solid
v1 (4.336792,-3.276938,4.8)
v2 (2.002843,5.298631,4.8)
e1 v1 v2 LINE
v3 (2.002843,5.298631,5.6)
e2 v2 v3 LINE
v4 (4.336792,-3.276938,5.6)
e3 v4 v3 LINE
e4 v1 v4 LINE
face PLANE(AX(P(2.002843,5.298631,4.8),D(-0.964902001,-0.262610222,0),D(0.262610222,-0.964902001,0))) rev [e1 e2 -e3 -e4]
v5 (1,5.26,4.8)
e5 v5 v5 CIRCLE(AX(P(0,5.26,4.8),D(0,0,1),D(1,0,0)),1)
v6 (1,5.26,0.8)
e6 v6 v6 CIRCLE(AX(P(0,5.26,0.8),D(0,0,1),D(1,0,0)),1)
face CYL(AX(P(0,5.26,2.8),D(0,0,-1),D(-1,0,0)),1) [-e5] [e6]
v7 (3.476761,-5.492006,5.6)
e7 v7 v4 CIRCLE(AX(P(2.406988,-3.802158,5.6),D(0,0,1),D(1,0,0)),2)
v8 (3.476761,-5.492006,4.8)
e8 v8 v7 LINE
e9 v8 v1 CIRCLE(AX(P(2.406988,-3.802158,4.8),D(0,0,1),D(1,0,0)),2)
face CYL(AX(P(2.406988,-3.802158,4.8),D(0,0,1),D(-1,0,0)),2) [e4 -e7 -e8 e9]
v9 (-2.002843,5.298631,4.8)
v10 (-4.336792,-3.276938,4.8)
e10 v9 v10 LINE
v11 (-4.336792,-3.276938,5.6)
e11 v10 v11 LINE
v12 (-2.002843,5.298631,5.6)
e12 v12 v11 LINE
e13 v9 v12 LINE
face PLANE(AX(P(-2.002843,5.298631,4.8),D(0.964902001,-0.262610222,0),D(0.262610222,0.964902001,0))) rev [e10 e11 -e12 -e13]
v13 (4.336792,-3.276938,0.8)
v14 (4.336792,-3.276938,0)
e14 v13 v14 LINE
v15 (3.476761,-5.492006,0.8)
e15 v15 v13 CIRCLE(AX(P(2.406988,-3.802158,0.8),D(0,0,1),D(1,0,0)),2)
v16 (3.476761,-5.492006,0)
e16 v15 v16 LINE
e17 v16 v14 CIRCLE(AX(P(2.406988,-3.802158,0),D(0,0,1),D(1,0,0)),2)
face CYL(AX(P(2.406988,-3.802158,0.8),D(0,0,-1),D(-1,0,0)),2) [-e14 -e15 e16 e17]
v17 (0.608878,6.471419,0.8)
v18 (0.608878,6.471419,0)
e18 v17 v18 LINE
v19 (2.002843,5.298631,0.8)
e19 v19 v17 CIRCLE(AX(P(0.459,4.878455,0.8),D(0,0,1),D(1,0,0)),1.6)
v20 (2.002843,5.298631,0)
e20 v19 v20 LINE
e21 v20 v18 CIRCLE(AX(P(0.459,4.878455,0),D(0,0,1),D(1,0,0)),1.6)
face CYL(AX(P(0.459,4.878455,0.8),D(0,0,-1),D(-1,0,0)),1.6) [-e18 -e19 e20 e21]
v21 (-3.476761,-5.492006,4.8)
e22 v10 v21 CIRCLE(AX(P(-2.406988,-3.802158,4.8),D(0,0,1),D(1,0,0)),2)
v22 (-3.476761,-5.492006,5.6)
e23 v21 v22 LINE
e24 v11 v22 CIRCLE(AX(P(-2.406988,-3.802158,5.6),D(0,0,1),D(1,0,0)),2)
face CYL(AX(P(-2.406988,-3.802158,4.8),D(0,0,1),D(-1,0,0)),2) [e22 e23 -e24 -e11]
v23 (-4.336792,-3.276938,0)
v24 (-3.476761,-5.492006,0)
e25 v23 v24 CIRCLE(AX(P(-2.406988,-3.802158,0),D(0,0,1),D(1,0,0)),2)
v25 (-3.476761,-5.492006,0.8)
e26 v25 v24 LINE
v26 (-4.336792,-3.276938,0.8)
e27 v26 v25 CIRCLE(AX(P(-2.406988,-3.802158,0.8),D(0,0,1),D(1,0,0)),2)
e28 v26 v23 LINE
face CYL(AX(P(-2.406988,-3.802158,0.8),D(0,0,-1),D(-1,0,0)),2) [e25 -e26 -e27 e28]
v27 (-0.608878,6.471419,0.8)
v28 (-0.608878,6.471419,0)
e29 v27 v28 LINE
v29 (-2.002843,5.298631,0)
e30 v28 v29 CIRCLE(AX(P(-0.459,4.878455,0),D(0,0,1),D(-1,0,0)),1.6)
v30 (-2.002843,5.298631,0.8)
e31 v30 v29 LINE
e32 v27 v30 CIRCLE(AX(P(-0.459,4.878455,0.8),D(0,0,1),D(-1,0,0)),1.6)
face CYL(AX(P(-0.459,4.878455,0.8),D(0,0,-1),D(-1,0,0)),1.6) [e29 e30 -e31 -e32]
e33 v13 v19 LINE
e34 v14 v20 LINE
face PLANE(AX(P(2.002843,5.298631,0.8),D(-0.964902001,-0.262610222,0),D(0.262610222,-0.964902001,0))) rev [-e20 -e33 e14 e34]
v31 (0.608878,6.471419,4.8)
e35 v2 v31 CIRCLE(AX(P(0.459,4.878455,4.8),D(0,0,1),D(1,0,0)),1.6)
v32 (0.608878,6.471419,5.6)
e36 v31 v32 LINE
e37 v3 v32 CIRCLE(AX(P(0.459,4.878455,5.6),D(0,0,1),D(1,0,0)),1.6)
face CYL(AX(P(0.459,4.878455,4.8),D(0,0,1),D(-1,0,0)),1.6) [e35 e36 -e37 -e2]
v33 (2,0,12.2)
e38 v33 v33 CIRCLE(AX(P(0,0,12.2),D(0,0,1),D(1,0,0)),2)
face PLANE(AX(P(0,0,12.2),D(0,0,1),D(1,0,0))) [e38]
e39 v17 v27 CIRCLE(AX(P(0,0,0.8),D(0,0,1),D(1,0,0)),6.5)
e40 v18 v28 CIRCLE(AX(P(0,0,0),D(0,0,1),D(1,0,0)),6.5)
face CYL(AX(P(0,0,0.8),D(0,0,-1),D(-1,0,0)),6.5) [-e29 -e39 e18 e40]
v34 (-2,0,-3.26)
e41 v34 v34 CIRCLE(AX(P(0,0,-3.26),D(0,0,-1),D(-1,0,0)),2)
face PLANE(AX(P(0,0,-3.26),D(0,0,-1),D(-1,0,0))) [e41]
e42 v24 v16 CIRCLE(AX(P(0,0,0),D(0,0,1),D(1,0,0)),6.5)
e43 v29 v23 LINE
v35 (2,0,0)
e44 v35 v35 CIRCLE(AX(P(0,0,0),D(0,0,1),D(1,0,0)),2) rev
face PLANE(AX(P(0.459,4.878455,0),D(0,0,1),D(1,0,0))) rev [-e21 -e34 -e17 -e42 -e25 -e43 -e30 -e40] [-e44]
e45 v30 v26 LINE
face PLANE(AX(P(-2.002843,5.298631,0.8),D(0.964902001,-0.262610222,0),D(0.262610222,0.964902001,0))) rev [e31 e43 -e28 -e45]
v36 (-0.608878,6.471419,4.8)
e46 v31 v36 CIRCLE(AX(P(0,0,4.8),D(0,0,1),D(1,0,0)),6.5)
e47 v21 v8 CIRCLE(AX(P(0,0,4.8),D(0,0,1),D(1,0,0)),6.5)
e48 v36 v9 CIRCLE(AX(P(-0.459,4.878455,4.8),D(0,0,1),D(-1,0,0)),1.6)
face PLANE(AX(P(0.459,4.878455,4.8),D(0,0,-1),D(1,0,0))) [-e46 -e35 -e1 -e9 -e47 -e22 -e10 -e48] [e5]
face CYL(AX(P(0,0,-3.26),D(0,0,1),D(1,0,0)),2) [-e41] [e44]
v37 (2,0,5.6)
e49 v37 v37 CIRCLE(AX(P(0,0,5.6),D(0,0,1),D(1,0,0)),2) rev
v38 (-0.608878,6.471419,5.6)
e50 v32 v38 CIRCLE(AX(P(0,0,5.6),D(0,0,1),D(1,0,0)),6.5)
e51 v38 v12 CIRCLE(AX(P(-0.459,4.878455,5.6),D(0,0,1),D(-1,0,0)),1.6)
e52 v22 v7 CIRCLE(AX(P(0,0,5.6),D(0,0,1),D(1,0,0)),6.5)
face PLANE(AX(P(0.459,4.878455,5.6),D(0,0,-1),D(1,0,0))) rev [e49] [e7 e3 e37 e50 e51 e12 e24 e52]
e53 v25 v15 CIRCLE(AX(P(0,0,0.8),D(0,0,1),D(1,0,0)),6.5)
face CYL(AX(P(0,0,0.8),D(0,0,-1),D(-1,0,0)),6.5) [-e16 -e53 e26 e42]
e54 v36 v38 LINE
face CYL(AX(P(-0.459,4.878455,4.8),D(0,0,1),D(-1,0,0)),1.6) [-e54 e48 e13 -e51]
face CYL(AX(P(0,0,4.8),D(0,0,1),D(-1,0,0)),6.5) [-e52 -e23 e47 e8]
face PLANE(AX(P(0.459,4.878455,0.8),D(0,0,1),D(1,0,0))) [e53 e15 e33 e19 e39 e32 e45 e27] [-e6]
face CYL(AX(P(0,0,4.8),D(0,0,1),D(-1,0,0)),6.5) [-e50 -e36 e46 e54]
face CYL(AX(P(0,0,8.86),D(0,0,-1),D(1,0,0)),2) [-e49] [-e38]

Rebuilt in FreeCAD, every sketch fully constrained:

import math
import FreeCAD as App
import Part
import Sketcher
from FreeCAD import Vector

doc = App.newDocument("Part")
params = doc.addObject("Spreadsheet::Sheet", "Params")
for row, (alias, value) in enumerate([
    ("sketch1_radius", "2 mm"),
    ("sketch1_radius2", "6.5 mm"),
    ("sketch1_radius3", "1.6 mm"),
    ("pad1_length", "0.8 mm"),
    ("sketch2_diameter", "2 mm"),
    ("pad2_length", "2 mm"),
    ("sketch3_diameter", "4 mm"),
    ("pad3_length", "3.26 mm"),
    ("sketch4_diameter", "4 mm"),
    ("pad4_length", "3.34 mm"),
], start=1):
    params.set(f"A{row}", alias)
    params.set(f"B{row}", "=" + value)
    params.setAlias(f"B{row}", alias)

body = doc.addObject("PartDesign::Body", "Body")

sketch1 = body.newObject("Sketcher::SketchObject", "Sketch")
sketch1.AttachmentSupport = (doc.getObject("XY_Plane"), [""])
sketch1.MapMode = "FlatFace"
sketch1.addGeometry(Part.LineSegment(Vector(-2, 5.3, 0), Vector(-4.3, -3.3, 0)), False)
sketch1.addGeometry(Part.ArcOfCircle(Part.Circle(Vector(-2.4, -3.8, 0), Vector(0, 0, 1), 2), math.radians(165), math.radians(238)), False)
sketch1.addGeometry(Part.ArcOfCircle(Part.Circle(Vector(0, 0, 0), Vector(0, 0, 1), 6.5), math.radians(-122), math.radians(-58)), False)
sketch1.addGeometry(Part.ArcOfCircle(Part.Circle(Vector(2.4, -3.8, 0), Vector(0, 0, 1), 2), math.radians(-58), math.radians(15)), False)
sketch1.addGeometry(Part.LineSegment(Vector(4.3, -3.3, 0), Vector(2, 5.3, 0)), False)
sketch1.addGeometry(Part.ArcOfCircle(Part.Circle(Vector(0.5, 4.9, 0), Vector(0, 0, 1), 1.6), math.radians(15), math.radians(85)), False)
sketch1.addGeometry(Part.ArcOfCircle(Part.Circle(Vector(0, 0, 0), Vector(0, 0, 1), 6.5), math.radians(84.63), math.radians(95.37)), False)
sketch1.addGeometry(Part.ArcOfCircle(Part.Circle(Vector(-0.5, 4.9, 0), Vector(0, 0, 1), 1.6), math.radians(95), math.radians(165)), False)
sketch1.addConstraint(Sketcher.Constraint("Tangent", 0, 2, 1, 1))
sketch1.addConstraint(Sketcher.Constraint("Tangent", 1, 2, 2, 1))
sketch1.addConstraint(Sketcher.Constraint("Tangent", 2, 2, 3, 1))
sketch1.addConstraint(Sketcher.Constraint("Tangent", 3, 2, 4, 1))
sketch1.addConstraint(Sketcher.Constraint("Tangent", 4, 2, 5, 1))
sketch1.addConstraint(Sketcher.Constraint("Tangent", 5, 2, 6, 1))
sketch1.addConstraint(Sketcher.Constraint("Tangent", 6, 2, 7, 1))
sketch1.addConstraint(Sketcher.Constraint("Tangent", 7, 2, 0, 1))
sketch1.addConstraint(Sketcher.Constraint("Coincident", 2, 3, -1, 1))
sketch1.addConstraint(Sketcher.Constraint("Coincident", 6, 3, -1, 1))
sketch1.addConstraint(Sketcher.Constraint("Equal", 1, 3))
sketch1.addConstraint(Sketcher.Constraint("Equal", 2, 6))
sketch1.addConstraint(Sketcher.Constraint("Equal", 5, 7))
sketch1.addConstraint(Sketcher.Constraint("Symmetric", 0, 2, 3, 2, -2))
sketch1.addConstraint(Sketcher.Constraint("Radius", 1, 2.0))
sketch1.addConstraint(Sketcher.Constraint("Radius", 2, 6.5))
sketch1.addConstraint(Sketcher.Constraint("Radius", 5, 1.6))
sketch1.addConstraint(Sketcher.Constraint("DistanceX", -1, 1, 5, 3, 0.459))
sketch1.addConstraint(Sketcher.Constraint("DistanceX", 1, 3, -1, 1, 2.406988))
sketch1.setExpression("Constraints[14]", "Params.sketch1_radius")
sketch1.setExpression("Constraints[15]", "Params.sketch1_radius2")
sketch1.setExpression("Constraints[16]", "Params.sketch1_radius3")
pad1 = body.newObject("PartDesign::Pad", "Pad")
pad1.Profile = sketch1
pad1.setExpression("Length", "Params.pad1_length")

sketch2 = body.newObject("Sketcher::SketchObject", "Sketch001")
sketch2.AttachmentSupport = (doc.getObject("XY_Plane"), [""])
sketch2.MapMode = "FlatFace"
sketch2.AttachmentOffset = App.Placement(Vector(0, 0, 0.8), App.Rotation())
sketch2.addGeometry(Part.Circle(Vector(0, 5.3, 0), Vector(0, 0, 1), 1), False)
sketch2.addConstraint(Sketcher.Constraint("PointOnObject", 0, 3, -2))
sketch2.addConstraint(Sketcher.Constraint("Diameter", 0, 2.0))
sketch2.addConstraint(Sketcher.Constraint("DistanceY", -1, 1, 0, 3, 5.26))
sketch2.setExpression("Constraints[1]", "Params.sketch2_diameter")
pad2 = body.newObject("PartDesign::Pad", "Pad001")
pad2.Profile = sketch2
pad2.setExpression("Length", "Params.pad2_length")

sketch3 = body.newObject("Sketcher::SketchObject", "Sketch002")
sketch3.AttachmentSupport = (doc.getObject("XY_Plane"), [""])
sketch3.MapMode = "FlatFace"
sketch3.addGeometry(Part.Circle(Vector(0, 0, 0), Vector(0, 0, 1), 2), False)
sketch3.addConstraint(Sketcher.Constraint("Coincident", 0, 3, -1, 1))
sketch3.addConstraint(Sketcher.Constraint("Diameter", 0, 4.0))
sketch3.setExpression("Constraints[1]", "Params.sketch3_diameter")
pad3 = body.newObject("PartDesign::Pad", "Pad002")
pad3.Profile = sketch3
pad3.setExpression("Length", "Params.pad3_length")
pad3.Reversed = True
body2 = doc.addObject("PartDesign::Body", "Body001")
doc.recompute()

body2.BaseFeature = body
doc.recompute()

mirroring = doc.addObject("Part::Mirroring", "Mirroring")
mirroring.Source = body
mirroring.Base = Vector(0, 5.26, 2.8)
mirroring.Normal = Vector(0, 0, 1)
body3 = doc.addObject("PartDesign::Body", "Body002")
body3.BaseFeature = mirroring
boolean = body2.newObject("PartDesign::Boolean", "Boolean")
boolean.Type = "Fuse"
boolean.addObjects([body3])
doc.recompute()

sketch4 = body2.newObject("Sketcher::SketchObject", "Sketch003")
sketch4.AttachmentSupport = (doc.getObject("XY_Plane001"), [""])
sketch4.MapMode = "FlatFace"
sketch4.AttachmentOffset = App.Placement(Vector(0, 0, 8.86), App.Rotation())
sketch4.addGeometry(Part.Circle(Vector(0, 0, 0), Vector(0, 0, 1), 2), False)
sketch4.addConstraint(Sketcher.Constraint("Coincident", 0, 3, -1, 1))
sketch4.addConstraint(Sketcher.Constraint("Diameter", 0, 4.0))
sketch4.setExpression("Constraints[1]", "Params.sketch4_diameter")
pad4 = body2.newObject("PartDesign::Pad", "Pad003")
pad4.Profile = sketch4
pad4.setExpression("Length", "Params.pad4_length")
mirroring.Visibility = False

doc.recompute()
